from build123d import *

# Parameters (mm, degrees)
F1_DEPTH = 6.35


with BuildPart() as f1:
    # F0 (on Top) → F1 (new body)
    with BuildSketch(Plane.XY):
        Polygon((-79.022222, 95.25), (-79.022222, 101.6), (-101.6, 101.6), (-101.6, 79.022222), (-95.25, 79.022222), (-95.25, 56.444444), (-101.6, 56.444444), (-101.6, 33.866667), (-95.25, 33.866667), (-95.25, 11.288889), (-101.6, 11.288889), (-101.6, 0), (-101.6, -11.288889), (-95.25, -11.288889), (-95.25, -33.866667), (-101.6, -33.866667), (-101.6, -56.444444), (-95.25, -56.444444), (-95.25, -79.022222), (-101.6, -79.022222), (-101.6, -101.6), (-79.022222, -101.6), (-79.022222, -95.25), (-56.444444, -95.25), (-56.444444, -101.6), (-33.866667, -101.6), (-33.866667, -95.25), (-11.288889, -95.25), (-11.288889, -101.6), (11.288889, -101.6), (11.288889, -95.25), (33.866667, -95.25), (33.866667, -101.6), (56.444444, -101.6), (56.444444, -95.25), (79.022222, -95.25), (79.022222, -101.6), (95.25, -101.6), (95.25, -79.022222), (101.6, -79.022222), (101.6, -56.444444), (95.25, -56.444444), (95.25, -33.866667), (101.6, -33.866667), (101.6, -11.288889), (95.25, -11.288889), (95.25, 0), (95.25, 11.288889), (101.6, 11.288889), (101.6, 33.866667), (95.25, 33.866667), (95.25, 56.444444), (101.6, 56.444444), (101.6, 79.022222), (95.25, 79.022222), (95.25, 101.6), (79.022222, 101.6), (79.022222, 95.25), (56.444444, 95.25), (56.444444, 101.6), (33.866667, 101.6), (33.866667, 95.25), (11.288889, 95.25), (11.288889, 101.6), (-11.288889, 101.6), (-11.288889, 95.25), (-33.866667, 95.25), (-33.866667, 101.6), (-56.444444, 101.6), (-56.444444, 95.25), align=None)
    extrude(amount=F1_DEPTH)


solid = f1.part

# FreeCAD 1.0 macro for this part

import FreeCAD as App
import Part
import Sketcher
from FreeCAD import Vector
Q = App.Units.Quantity


def add_polygon(sketch, points):
    """Adds a closed chain of lines whose ends are joined by coincident constraints."""
    first, n = sketch.GeometryCount, len(points)
    for a, b in zip(points, points[1:] + points[:1]):
        sketch.addGeometry(Part.LineSegment(App.Vector(*a, 0), App.Vector(*b, 0)), False)
    for i in range(n):
        sketch.addConstraint(Sketcher.Constraint("Coincident", first + i, 2, first + (i + 1) % n, 1))

doc = App.newDocument("Part")
body = doc.addObject("PartDesign::Body", "Body")

# Sketch on XY plane
sketch1 = body.newObject("Sketcher::SketchObject", "Sketch")
sketch1.AttachmentSupport = (doc.getObject("XY_Plane"), [""])
sketch1.MapMode = "FlatFace"
add_polygon(sketch1, [(-79, 95), (-79, 102), (-102, 102), (-102, 79), (-95, 79), (-95, 56), (-102, 56), (-102, 34), (-95, 34), (-95, 11), (-102, 11), (-102, -11), (-95, -11), (-95, -34), (-102, -34), (-102, -56), (-95, -56), (-95, -79), (-102, -79), (-102, -102), (-79, -102), (-79, -95), (-56, -95), (-56, -102), (-34, -102), (-34, -95), (-11, -95), (-11, -102), (11, -102), (11, -95), (34, -95), (34, -102), (56, -102), (56, -95), (79, -95), (79, -102), (95, -102), (95, -79), (102, -79), (102, -56), (95, -56), (95, -34), (102, -34), (102, -11), (95, -11), (95, 11), (102, 11), (102, 34), (95, 34), (95, 56), (102, 56), (102, 79), (95, 79), (95, 102), (79, 102), (79, 95), (56, 95), (56, 102), (34, 102), (34, 95), (11, 95), (11, 102), (-11, 102), (-11, 95), (-34, 95), (-34, 102), (-56, 102), (-56, 95)])  # lines 0-67
sketch1.addConstraint([
    Sketcher.Constraint("Vertical", 0),
    Sketcher.Constraint("Horizontal", 1),
    Sketcher.Constraint("Vertical", 2),
    Sketcher.Constraint("Horizontal", 3),
    Sketcher.Constraint("Vertical", 4),
    Sketcher.Constraint("Horizontal", 5),
    Sketcher.Constraint("Vertical", 6),
    Sketcher.Constraint("Horizontal", 7),
    Sketcher.Constraint("Vertical", 8),
    Sketcher.Constraint("Horizontal", 9),
    Sketcher.Constraint("Vertical", 10),
    Sketcher.Constraint("Horizontal", 11),
    Sketcher.Constraint("Vertical", 12),
    Sketcher.Constraint("Horizontal", 13),
    Sketcher.Constraint("Vertical", 14),
    Sketcher.Constraint("Horizontal", 15),
    Sketcher.Constraint("Vertical", 16),
    Sketcher.Constraint("Horizontal", 17),
    Sketcher.Constraint("Vertical", 18),
    Sketcher.Constraint("Horizontal", 19),
    Sketcher.Constraint("Vertical", 20),
    Sketcher.Constraint("Horizontal", 21),
    Sketcher.Constraint("Vertical", 22),
    Sketcher.Constraint("Horizontal", 23),
    Sketcher.Constraint("Vertical", 24),
    Sketcher.Constraint("Horizontal", 25),
    Sketcher.Constraint("Vertical", 26),
    Sketcher.Constraint("Horizontal", 27),
    Sketcher.Constraint("Vertical", 28),
    Sketcher.Constraint("Horizontal", 29),
    Sketcher.Constraint("Vertical", 30),
    Sketcher.Constraint("Horizontal", 31),
    Sketcher.Constraint("Vertical", 32),
    Sketcher.Constraint("Horizontal", 33),
    Sketcher.Constraint("Vertical", 34),
    Sketcher.Constraint("Horizontal", 35),
    Sketcher.Constraint("Vertical", 36),
    Sketcher.Constraint("Horizontal", 37),
    Sketcher.Constraint("Vertical", 38),
    Sketcher.Constraint("Horizontal", 39),
    Sketcher.Constraint("Vertical", 40),
    Sketcher.Constraint("Horizontal", 41),
    Sketcher.Constraint("Vertical", 42),
    Sketcher.Constraint("Horizontal", 43),
    Sketcher.Constraint("Vertical", 44),
    Sketcher.Constraint("Horizontal", 45),
    Sketcher.Constraint("Vertical", 46),
    Sketcher.Constraint("Horizontal", 47),
    Sketcher.Constraint("Vertical", 48),
    Sketcher.Constraint("Horizontal", 49),
    Sketcher.Constraint("Vertical", 50),
    Sketcher.Constraint("Horizontal", 51),
    Sketcher.Constraint("Vertical", 52),
    Sketcher.Constraint("Horizontal", 53),
    Sketcher.Constraint("Vertical", 54),
    Sketcher.Constraint("Horizontal", 55),
    Sketcher.Constraint("Vertical", 56),
    Sketcher.Constraint("Horizontal", 57),
    Sketcher.Constraint("Vertical", 58),
    Sketcher.Constraint("Horizontal", 59),
    Sketcher.Constraint("Vertical", 60),
    Sketcher.Constraint("Horizontal", 61),
    Sketcher.Constraint("Vertical", 62),
    Sketcher.Constraint("Horizontal", 63),
    Sketcher.Constraint("Vertical", 64),
    Sketcher.Constraint("Horizontal", 65),
    Sketcher.Constraint("Vertical", 66),
    Sketcher.Constraint("Horizontal", 67),
    Sketcher.Constraint("Symmetric", 0, 2, 34, 2, -1, 1),
    Sketcher.Constraint("Symmetric", 3, 2, 36, 2, -1, 1),
    Sketcher.Constraint("Symmetric", 5, 2, 38, 2, -1, 1),
    Sketcher.Constraint("Symmetric", 7, 2, 40, 2, -1, 1),
    Sketcher.Constraint("Symmetric", 9, 2, 42, 2, -1, 1),
    Sketcher.Constraint("Symmetric", 11, 2, 44, 2, -1, 1),
    Sketcher.Constraint("Symmetric", 13, 2, 46, 2, -1, 1),
    Sketcher.Constraint("Symmetric", 15, 2, 48, 2, -1, 1),
    Sketcher.Constraint("Symmetric", 17, 2, 50, 2, -1, 1),
    Sketcher.Constraint("Symmetric", 19, 2, 53, 2, -1, 1),
    Sketcher.Constraint("Symmetric", 21, 2, 55, 2, -1, 1),
    Sketcher.Constraint("Symmetric", 23, 2, 57, 2, -1, 1),
    Sketcher.Constraint("Symmetric", 25, 2, 59, 2, -1, 1),
    Sketcher.Constraint("Symmetric", 27, 2, 61, 2, -1, 1),
    Sketcher.Constraint("Symmetric", 29, 2, 63, 2, -1, 1),
    Sketcher.Constraint("Symmetric", 31, 2, 65, 2, -1, 1),
    Sketcher.Constraint("Symmetric", 25, 2, 28, 2, -2),
    Sketcher.Constraint("Symmetric", 23, 2, 30, 2, -2),
    Sketcher.Constraint("Symmetric", 21, 2, 32, 2, -2),
    Sketcher.Constraint("Symmetric", 19, 2, 34, 2, -2),
    Sketcher.Constraint("Symmetric", 16, 2, 36, 2, -2),
    Sketcher.Constraint("Symmetric", 14, 2, 38, 2, -2),
    Sketcher.Constraint("Symmetric", 12, 2, 40, 2, -2),
    Sketcher.Constraint("Symmetric", 9, 2, 45, 2, -2),
    Sketcher.Constraint("Horizontal", 19, 2, 22, 2),
    Sketcher.Constraint("Horizontal", 21, 2, 24, 2),
    Sketcher.Constraint("Horizontal", 23, 2, 26, 2),
    Sketcher.Constraint("Horizontal", 63, 2, 66, 2),
    Sketcher.Constraint("Vertical", 2, 2, 5, 2),
    Sketcher.Constraint("Vertical", 4, 2, 7, 2),
    Sketcher.Constraint("Vertical", 14, 2, 17, 2),
    Sketcher.Constraint("Vertical", 48, 2, 51, 2),
    Sketcher.Constraint("Equal", 19, 21),
    Sketcher.Constraint("Equal", 21, 23),
    Sketcher.Constraint("Equal", 23, 25),
    Sketcher.Constraint("Equal", 25, 27),
    Sketcher.Constraint("Equal", 51, 0),
    Sketcher.Constraint("Equal", 67, 2),
    Sketcher.Constraint("Equal", 2, 4),
    Sketcher.Constraint("Equal", 4, 6),
    Sketcher.Constraint("Equal", 6, 8),
    Sketcher.Constraint("Equal", 8, 10),
    Sketcher.Constraint("DistanceY", -1, 1, 0, 2, Q("4 in")),
    Sketcher.Constraint("DistanceX", 3, 1, 3, 2, Q("0.25 in")),
])
pad1 = body.newObject("PartDesign::Pad", "Pad")
pad1.Profile = sketch1
pad1.Length = Q("0.25 in")

doc.recompute()
